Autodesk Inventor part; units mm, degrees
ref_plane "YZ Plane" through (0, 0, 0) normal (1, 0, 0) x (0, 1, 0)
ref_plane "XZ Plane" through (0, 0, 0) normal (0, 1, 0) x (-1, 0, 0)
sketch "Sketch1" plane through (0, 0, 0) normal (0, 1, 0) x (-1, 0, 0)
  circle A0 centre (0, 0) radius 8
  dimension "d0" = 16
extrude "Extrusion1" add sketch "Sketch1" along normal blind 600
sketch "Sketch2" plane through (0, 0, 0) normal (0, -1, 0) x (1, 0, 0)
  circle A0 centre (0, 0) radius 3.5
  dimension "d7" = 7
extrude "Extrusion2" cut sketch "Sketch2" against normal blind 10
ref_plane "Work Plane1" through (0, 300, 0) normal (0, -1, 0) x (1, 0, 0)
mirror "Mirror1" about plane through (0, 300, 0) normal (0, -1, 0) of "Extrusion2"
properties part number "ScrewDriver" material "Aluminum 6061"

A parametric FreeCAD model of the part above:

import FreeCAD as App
import Part
import Sketcher

doc = App.newDocument("Part")
params = doc.addObject("Spreadsheet::Sheet", "Params")
for row, (alias, value) in enumerate([
    ("sketch1_diameter", "16 mm"),
    ("pad1_length", "600 mm"),
    ("sketch2_diameter", "7 mm"),
    ("pocket1_length", "10 mm"),
], start=1):
    params.set(f"A{row}", alias)
    params.set(f"B{row}", "=" + value)
    params.setAlias(f"B{row}", alias)

body = doc.addObject("PartDesign::Body", "Body")

sketch1 = body.newObject("Sketcher::SketchObject", "Sketch")
sketch1.AttachmentSupport = (doc.getObject("XZ_Plane"), [""])
sketch1.MapMode = "FlatFace"
sketch1.addGeometry(Part.Circle(App.Vector(0, 0, 0), App.Vector(0, 0, 1), 8), False)
sketch1.addConstraint([
    Sketcher.Constraint("Coincident", 0, 3, -1, 1),
    Sketcher.Constraint("Diameter", 0, 16.0),
])
sketch1.setExpression("Constraints[1]", "Params.sketch1_diameter")
pad1 = body.newObject("PartDesign::Pad", "Pad")
pad1.Profile = sketch1
pad1.setExpression("Length", "Params.pad1_length")
pad1.Reversed = True

sketch2 = body.newObject("Sketcher::SketchObject", "Sketch001")
sketch2.AttachmentSupport = (doc.getObject("XZ_Plane"), [""])
sketch2.MapMode = "FlatFace"
sketch2.addGeometry(Part.Circle(App.Vector(0, 0, 0), App.Vector(0, 0, 1), 3.5), False)
sketch2.addConstraint([
    Sketcher.Constraint("Coincident", 0, 3, -1, 1),
    Sketcher.Constraint("Diameter", 0, 7.0),
])
sketch2.setExpression("Constraints[1]", "Params.sketch2_diameter")
pocket1 = body.newObject("PartDesign::Pocket", "Pocket")
pocket1.Profile = sketch2
pocket1.setExpression("Length", "Params.pocket1_length")
doc.recompute()

datumplane = body.newObject("PartDesign::Plane", "DatumPlane")
datumplane.AttachmentSupport = (doc.getObject("XZ_Plane"), [""])
datumplane.MapMode = "FlatFace"
datumplane.AttachmentOffset = App.Placement(App.Vector(0, 0, -300), App.Rotation())
mirrored = body.newObject("PartDesign::Mirrored", "Mirrored")
mirrored.Originals = [pocket1]
mirrored.MirrorPlane = (datumplane, [""])
body.Tip = mirrored

doc.recompute()
